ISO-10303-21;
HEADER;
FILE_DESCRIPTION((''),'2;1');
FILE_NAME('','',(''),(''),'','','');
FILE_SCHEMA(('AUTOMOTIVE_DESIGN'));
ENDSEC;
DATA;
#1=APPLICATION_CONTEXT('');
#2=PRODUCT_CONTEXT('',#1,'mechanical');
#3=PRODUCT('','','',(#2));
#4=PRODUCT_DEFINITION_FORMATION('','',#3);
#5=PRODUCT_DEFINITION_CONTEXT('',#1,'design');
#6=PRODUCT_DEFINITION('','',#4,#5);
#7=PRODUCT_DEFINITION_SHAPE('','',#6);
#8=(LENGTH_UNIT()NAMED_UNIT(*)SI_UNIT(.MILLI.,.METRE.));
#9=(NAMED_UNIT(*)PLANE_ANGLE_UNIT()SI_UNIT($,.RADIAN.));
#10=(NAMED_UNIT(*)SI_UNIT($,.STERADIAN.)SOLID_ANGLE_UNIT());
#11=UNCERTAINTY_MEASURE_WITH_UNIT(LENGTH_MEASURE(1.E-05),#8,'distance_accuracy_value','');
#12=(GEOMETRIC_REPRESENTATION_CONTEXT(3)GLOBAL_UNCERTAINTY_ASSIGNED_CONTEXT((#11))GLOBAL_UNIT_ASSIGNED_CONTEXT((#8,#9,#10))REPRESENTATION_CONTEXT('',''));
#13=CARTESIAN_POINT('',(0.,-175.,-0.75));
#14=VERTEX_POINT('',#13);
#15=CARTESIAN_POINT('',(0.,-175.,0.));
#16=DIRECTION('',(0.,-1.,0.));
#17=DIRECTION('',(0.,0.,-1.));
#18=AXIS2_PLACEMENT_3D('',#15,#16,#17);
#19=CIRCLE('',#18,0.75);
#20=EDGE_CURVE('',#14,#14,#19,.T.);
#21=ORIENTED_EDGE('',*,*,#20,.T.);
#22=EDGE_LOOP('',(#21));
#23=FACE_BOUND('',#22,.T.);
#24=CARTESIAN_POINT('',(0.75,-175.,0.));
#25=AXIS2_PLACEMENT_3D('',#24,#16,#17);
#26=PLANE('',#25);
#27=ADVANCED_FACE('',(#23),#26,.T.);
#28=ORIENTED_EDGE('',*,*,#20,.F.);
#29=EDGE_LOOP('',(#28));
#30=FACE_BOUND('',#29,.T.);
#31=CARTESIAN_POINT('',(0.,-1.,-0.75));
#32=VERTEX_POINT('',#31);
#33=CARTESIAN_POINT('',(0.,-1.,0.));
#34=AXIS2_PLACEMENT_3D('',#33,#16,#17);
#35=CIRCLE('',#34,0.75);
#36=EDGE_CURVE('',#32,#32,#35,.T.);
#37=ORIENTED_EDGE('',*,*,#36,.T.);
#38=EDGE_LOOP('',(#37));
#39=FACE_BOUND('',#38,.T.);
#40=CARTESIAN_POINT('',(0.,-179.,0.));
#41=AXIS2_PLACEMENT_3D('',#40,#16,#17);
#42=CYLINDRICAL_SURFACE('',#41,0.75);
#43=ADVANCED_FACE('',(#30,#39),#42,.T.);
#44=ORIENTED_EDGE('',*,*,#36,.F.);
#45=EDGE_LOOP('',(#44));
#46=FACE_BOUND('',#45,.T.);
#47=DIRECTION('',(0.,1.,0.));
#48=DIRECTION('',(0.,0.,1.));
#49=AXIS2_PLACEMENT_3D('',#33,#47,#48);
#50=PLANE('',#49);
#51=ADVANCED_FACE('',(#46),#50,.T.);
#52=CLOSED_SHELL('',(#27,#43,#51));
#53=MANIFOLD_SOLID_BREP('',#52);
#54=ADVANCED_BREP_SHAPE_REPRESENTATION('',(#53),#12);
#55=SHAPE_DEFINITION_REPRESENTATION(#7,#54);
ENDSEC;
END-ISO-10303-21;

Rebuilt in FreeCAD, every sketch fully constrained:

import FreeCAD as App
import Part
import Sketcher
from FreeCAD import Vector


def add_polygon(sketch, points):
    """Adds a closed chain of lines whose ends are joined by coincident constraints."""
    first, n = sketch.GeometryCount, len(points)
    for a, b in zip(points, points[1:] + points[:1]):
        sketch.addGeometry(Part.LineSegment(App.Vector(*a, 0), App.Vector(*b, 0)), False)
    for i in range(n):
        sketch.addConstraint(Sketcher.Constraint("Coincident", first + i, 2, first + (i + 1) % n, 1))

doc = App.newDocument("Part")
params = doc.addObject("Spreadsheet::Sheet", "Params")
for row, (alias, value) in enumerate([
    ("sketch1_height", "174 mm"),
    ("sketch1_width", "0.75 mm"),
    ("revolution_angle", "360 deg"),
], start=1):
    params.set(f"A{row}", alias)
    params.set(f"B{row}", "=" + value)
    params.setAlias(f"B{row}", alias)

body = doc.addObject("PartDesign::Body", "Body")

# Sketch on XY plane
sketch1 = body.newObject("Sketcher::SketchObject", "Sketch")
sketch1.AttachmentSupport = (doc.getObject("XY_Plane"), [""])
sketch1.MapMode = "FlatFace"
add_polygon(sketch1, [(0, -1), (0, -175), (0.75, -175), (0.75, -1)])  # lines 0-3
sketch1.addConstraint([
    Sketcher.Constraint("Vertical", 0),
    Sketcher.Constraint("Horizontal", 1),
    Sketcher.Constraint("Vertical", 2),
    Sketcher.Constraint("Horizontal", 3),
    Sketcher.Constraint("PointOnObject", 0, 2, -2),
    Sketcher.Constraint("DistanceY", 0, 2, 0, 1, 174.0),
    Sketcher.Constraint("DistanceY", 0, 2, -1, 1, 175.0),
    Sketcher.Constraint("DistanceX", 1, 1, 1, 2, 0.75),
])
sketch1.setExpression("Constraints[9]", "Params.sketch1_height")
sketch1.setExpression("Constraints[11]", "Params.sketch1_width")
revolution = body.newObject("PartDesign::Revolution", "Revolution")
revolution.Profile = sketch1
revolution.ReferenceAxis = (sketch1, ["V_Axis"])
revolution.setExpression("Angle", "Params.revolution_angle")

doc.recompute()
